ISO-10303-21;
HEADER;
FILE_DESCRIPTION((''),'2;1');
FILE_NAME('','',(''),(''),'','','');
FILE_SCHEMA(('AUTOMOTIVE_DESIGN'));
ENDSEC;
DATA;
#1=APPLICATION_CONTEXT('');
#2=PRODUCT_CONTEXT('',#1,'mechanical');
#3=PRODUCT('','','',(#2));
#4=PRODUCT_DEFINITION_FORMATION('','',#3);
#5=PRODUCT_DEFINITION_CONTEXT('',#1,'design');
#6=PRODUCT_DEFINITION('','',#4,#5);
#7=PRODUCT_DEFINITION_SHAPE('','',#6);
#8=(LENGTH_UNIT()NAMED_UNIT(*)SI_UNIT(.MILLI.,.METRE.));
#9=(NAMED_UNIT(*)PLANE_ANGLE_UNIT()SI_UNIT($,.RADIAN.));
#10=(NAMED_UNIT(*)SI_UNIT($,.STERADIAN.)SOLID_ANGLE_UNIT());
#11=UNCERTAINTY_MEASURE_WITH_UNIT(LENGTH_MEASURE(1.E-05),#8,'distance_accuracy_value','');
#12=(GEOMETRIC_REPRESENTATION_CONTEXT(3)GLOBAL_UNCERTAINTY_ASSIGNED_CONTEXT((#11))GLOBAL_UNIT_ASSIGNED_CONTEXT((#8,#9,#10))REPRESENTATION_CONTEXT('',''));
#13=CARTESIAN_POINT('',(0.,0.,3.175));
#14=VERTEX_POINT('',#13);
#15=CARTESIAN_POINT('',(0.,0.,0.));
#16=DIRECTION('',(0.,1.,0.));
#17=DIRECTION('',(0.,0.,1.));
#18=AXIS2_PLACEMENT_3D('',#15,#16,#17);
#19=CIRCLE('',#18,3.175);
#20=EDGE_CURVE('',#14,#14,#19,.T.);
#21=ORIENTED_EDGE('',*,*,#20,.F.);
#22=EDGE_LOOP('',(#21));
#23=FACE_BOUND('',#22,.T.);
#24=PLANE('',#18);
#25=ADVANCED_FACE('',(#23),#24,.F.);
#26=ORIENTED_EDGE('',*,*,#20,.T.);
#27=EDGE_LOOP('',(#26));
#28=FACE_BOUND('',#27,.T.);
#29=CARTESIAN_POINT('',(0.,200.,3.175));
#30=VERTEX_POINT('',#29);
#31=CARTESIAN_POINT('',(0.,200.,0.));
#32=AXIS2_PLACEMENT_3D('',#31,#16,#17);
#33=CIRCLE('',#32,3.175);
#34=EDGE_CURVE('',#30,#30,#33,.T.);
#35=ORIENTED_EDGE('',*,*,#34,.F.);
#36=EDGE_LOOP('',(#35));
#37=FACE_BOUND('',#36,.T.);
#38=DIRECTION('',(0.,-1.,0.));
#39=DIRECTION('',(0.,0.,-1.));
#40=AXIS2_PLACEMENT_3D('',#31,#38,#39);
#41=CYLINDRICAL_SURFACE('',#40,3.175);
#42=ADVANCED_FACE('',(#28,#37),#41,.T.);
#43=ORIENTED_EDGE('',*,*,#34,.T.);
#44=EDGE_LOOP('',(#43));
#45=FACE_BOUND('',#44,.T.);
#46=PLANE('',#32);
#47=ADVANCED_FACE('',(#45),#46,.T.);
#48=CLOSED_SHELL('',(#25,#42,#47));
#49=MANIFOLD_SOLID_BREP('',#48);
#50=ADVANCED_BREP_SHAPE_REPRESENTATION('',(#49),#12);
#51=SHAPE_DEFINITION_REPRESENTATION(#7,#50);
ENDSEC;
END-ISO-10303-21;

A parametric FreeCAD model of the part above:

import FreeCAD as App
import Part
import Sketcher
from FreeCAD import Vector
Q = App.Units.Quantity

doc = App.newDocument("Part")
body = doc.addObject("PartDesign::Body", "Body")

# Sketch on XZ plane
sketch1 = doc.addObject("Sketcher::SketchObject", "Sketch")
body.addObject(sketch1)
sketch1.AttachmentSupport = (doc.XZ_Plane, [""])
sketch1.MapMode = "FlatFace"
sketch1.addGeometry(Part.Circle(Vector(0, 0, 0), Vector(0, 0, 1), 3.2), False)
sketch1.addConstraint([
    Sketcher.Constraint("Coincident", 0, 3, -1, 1),
    Sketcher.Constraint("Diameter", 0, Q("6.35 mm")),
])
pad1 = doc.addObject("PartDesign::Pad", "Pad")
body.addObject(pad1)
pad1.Profile = sketch1
pad1.Length = 200
pad1.Reversed = True

doc.recompute()
